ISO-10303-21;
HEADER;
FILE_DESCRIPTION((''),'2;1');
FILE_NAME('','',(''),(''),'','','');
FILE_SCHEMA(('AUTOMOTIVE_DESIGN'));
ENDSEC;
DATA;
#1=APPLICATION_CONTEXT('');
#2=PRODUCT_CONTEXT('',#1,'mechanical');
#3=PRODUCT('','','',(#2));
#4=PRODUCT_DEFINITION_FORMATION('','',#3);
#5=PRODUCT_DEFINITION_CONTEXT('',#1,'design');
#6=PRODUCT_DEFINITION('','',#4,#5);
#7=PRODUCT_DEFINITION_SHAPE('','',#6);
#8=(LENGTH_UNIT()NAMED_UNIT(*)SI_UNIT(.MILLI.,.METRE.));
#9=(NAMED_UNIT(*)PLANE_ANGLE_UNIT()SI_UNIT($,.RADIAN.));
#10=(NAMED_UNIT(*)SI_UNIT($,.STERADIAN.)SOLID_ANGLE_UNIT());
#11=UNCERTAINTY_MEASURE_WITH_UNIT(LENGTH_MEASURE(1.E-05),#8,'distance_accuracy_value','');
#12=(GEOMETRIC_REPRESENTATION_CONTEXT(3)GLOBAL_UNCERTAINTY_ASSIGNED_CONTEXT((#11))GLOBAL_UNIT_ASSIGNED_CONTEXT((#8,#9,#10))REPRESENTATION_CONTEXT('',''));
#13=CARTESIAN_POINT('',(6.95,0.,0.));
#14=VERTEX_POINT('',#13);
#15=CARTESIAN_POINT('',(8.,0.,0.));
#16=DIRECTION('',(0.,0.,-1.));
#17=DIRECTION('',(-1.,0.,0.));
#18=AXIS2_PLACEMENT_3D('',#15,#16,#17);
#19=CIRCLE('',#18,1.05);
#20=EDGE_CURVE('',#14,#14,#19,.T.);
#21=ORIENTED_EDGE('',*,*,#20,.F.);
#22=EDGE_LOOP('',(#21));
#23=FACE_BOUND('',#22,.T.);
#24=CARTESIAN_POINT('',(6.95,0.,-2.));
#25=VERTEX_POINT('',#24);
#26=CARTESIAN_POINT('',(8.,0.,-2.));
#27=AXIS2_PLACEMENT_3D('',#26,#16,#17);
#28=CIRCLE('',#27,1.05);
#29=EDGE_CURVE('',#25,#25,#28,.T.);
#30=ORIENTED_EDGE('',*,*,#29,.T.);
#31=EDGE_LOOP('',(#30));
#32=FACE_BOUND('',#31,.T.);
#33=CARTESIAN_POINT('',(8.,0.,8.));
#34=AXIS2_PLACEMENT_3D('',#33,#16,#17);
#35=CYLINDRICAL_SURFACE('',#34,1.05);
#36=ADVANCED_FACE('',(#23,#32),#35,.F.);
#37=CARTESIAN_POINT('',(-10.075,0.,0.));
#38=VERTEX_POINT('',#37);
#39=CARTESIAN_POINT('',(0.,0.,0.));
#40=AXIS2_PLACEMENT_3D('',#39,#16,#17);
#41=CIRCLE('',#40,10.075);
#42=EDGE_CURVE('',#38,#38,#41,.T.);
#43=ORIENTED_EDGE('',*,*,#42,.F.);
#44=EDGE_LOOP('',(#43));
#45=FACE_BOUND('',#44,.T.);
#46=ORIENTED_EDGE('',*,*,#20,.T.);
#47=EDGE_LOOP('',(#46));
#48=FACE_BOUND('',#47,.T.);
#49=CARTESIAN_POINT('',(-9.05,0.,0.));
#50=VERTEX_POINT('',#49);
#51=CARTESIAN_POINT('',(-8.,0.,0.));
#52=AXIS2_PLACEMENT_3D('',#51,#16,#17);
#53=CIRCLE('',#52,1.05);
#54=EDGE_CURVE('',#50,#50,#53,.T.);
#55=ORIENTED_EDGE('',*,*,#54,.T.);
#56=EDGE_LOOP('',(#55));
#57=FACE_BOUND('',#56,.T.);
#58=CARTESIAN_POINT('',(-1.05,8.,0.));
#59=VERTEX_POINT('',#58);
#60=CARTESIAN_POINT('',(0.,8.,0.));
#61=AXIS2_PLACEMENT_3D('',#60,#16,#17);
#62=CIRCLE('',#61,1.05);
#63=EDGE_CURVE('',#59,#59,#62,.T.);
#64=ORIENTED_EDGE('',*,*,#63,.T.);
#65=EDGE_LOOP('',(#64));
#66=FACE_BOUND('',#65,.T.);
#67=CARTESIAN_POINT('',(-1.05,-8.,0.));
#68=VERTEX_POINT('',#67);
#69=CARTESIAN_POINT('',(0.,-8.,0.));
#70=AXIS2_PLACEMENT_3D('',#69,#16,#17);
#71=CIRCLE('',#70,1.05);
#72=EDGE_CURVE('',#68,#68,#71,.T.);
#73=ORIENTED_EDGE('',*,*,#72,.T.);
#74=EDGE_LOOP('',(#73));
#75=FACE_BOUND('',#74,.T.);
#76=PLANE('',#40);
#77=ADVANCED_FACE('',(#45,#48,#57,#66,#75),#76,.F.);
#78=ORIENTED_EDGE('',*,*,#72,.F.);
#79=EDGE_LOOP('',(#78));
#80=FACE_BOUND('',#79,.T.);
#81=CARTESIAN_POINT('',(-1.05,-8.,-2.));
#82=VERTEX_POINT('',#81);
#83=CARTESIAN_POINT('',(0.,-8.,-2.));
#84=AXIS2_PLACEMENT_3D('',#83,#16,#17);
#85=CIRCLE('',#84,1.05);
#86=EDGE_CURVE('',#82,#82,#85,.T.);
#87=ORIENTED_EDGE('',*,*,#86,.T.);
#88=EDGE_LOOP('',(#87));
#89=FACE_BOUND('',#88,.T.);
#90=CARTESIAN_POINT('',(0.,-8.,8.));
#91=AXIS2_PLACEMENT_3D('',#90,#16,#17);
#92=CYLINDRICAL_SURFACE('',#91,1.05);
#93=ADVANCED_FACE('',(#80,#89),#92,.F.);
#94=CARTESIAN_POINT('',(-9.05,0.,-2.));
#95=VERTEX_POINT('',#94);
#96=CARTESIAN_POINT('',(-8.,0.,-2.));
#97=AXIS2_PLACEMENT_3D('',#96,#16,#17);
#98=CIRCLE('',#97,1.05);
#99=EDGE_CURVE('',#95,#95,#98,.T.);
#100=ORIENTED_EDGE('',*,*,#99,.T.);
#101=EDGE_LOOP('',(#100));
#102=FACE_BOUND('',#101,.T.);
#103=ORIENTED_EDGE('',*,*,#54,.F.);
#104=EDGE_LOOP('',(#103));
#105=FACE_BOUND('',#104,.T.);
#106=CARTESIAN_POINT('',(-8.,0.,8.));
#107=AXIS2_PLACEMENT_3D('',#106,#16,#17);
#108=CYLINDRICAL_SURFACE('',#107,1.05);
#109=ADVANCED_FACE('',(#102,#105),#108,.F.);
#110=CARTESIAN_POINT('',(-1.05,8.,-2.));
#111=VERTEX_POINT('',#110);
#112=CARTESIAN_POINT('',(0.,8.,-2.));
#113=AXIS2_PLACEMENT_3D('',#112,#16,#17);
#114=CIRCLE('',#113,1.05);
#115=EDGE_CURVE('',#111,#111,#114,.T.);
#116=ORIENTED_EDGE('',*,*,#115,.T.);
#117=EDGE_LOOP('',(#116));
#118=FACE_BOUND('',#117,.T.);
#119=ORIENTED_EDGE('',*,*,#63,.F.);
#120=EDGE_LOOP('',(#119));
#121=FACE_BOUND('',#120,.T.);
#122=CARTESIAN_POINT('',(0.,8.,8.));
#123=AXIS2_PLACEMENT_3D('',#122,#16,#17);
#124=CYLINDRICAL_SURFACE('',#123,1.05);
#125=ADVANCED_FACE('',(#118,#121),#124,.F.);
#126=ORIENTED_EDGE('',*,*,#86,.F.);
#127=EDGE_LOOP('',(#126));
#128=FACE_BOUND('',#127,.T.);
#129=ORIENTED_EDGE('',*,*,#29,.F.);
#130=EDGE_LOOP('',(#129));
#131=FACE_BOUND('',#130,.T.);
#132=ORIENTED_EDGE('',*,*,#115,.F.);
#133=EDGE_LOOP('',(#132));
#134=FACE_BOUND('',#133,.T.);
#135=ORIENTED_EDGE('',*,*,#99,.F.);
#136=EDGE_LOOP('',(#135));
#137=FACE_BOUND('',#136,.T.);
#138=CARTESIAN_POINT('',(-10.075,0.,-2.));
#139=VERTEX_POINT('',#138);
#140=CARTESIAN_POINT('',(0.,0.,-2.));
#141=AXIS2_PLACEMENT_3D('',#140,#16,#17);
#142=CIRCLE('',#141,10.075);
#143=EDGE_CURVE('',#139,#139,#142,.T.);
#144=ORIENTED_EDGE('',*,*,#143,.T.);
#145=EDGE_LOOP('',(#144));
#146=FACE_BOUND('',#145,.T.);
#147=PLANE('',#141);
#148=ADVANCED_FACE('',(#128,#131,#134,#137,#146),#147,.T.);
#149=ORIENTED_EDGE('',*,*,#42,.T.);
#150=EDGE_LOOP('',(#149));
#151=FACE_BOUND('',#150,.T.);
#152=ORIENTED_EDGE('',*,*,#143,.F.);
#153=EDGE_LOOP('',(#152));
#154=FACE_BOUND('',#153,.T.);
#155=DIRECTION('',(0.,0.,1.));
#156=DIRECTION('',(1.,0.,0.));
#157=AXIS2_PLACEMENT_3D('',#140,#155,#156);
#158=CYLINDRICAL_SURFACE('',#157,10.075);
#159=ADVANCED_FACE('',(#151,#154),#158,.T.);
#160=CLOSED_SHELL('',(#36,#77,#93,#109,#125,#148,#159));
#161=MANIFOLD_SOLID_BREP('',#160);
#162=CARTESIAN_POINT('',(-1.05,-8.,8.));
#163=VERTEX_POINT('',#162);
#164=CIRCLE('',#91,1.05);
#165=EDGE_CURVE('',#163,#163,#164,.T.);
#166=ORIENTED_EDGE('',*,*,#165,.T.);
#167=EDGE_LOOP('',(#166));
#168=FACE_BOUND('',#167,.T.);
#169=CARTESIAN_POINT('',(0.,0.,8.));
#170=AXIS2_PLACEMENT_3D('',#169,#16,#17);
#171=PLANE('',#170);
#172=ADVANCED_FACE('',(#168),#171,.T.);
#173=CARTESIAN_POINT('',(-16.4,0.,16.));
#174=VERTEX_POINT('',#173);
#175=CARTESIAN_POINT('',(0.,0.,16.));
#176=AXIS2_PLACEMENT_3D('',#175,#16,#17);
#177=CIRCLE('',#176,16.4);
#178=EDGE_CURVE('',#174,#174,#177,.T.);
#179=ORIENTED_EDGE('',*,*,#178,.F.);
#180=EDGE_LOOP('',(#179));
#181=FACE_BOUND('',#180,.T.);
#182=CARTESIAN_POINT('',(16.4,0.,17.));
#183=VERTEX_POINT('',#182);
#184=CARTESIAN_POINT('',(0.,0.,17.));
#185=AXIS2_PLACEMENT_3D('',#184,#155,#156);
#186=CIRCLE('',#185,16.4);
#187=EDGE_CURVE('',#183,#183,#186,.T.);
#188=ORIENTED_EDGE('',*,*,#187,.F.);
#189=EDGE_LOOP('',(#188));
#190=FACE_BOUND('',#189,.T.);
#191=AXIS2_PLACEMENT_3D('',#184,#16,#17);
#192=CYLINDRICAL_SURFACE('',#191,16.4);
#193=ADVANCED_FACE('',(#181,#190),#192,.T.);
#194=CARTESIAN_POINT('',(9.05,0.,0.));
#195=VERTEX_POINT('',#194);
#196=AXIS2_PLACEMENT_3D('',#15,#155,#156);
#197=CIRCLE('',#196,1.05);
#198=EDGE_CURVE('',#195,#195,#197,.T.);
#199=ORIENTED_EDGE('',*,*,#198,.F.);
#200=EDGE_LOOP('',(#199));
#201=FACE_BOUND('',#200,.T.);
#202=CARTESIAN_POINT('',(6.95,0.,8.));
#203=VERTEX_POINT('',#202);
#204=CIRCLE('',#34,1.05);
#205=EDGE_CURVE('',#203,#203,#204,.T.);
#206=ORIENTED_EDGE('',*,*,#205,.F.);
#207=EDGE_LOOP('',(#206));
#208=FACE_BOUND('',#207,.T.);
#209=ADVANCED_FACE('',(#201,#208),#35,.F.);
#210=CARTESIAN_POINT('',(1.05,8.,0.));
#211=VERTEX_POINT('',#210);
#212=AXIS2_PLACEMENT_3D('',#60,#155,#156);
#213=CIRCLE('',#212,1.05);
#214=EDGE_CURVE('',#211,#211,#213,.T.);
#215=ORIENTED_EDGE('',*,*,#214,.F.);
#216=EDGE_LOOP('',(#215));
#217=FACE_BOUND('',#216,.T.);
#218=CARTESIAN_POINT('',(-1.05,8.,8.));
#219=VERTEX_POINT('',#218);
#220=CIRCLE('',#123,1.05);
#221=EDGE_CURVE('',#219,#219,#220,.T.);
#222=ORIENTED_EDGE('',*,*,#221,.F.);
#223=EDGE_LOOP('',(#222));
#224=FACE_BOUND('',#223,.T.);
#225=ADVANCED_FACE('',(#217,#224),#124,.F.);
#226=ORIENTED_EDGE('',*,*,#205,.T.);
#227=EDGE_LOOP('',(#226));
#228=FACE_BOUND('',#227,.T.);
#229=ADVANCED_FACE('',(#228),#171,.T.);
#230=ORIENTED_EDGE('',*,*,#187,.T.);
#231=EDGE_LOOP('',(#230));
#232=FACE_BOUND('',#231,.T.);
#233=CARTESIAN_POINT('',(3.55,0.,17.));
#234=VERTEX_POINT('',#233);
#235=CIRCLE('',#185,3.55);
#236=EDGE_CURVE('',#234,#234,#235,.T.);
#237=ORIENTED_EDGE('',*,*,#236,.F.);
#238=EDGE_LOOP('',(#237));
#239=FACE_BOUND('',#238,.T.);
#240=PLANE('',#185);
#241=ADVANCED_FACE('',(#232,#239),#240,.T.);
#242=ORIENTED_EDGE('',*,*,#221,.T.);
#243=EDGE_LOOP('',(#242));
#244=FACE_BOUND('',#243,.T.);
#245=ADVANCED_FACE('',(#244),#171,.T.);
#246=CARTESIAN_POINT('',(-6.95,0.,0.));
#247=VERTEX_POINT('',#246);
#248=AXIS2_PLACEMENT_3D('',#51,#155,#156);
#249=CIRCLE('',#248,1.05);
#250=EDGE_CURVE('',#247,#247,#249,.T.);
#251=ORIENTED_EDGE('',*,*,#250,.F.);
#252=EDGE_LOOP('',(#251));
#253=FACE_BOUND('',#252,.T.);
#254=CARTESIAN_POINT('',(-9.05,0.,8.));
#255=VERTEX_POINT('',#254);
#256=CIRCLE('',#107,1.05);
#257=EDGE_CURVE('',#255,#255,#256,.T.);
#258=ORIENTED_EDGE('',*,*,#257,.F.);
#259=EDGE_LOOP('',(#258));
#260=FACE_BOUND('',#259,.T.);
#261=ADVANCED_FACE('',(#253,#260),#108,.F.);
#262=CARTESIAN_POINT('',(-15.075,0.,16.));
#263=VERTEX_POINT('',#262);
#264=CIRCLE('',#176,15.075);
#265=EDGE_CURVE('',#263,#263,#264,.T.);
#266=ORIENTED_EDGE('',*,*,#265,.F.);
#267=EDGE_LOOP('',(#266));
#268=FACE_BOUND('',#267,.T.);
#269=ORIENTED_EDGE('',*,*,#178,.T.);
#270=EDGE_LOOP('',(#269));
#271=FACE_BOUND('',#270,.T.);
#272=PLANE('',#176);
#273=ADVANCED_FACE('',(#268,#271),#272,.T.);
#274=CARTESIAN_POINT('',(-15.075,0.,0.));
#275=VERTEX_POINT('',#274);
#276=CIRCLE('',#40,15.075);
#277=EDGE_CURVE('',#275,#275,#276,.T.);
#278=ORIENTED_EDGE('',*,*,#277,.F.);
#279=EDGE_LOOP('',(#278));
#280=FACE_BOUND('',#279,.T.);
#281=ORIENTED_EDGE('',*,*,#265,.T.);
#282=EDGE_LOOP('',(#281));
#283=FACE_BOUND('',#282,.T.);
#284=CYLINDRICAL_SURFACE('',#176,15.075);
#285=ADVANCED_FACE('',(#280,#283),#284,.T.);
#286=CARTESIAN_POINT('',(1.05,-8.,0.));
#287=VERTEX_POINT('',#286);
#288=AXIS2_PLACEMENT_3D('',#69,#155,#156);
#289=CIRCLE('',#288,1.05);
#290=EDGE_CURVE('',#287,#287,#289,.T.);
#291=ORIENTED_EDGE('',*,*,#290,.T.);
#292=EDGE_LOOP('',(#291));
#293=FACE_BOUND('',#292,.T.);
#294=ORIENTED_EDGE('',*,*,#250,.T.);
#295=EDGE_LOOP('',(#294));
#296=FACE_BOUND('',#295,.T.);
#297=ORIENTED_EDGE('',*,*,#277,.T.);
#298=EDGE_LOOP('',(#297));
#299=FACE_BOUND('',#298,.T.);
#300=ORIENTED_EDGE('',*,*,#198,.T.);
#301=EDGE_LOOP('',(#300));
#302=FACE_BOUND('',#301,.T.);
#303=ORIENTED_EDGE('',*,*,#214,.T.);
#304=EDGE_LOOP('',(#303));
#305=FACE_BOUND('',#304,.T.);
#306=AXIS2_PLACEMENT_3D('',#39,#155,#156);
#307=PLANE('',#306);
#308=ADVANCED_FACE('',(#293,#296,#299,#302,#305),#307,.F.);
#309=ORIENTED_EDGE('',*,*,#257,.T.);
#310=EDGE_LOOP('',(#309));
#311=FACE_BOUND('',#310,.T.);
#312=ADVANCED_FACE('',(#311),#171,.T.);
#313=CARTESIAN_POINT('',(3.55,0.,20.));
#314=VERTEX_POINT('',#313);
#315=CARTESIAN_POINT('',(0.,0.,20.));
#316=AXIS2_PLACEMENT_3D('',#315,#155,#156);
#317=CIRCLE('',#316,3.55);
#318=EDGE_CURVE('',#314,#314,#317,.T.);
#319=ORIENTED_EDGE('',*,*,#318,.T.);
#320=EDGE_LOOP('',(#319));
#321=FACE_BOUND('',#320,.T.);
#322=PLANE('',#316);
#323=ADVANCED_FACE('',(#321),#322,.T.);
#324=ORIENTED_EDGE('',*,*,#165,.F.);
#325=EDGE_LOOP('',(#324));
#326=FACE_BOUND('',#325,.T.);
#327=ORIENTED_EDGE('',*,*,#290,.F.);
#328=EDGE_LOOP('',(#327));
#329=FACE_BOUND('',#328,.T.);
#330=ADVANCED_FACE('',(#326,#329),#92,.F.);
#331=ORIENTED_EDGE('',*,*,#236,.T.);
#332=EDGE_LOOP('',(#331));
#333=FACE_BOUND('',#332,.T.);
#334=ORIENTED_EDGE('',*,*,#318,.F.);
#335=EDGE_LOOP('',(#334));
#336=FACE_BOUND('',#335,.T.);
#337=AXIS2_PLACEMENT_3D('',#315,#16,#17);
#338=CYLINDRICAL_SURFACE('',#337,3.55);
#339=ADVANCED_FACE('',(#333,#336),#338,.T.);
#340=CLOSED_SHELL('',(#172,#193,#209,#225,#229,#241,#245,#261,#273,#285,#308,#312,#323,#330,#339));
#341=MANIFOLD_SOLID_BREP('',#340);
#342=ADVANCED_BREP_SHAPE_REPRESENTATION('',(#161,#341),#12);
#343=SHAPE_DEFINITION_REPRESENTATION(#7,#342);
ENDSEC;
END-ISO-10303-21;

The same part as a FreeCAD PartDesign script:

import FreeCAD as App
import Part
import Sketcher
from FreeCAD import Vector
Q = App.Units.Quantity

doc = App.newDocument("Part")
body = doc.addObject("PartDesign::Body", "Body")

# Sketch on XY plane
sketch1 = body.newObject("Sketcher::SketchObject", "Sketch")
sketch1.AttachmentSupport = (doc.getObject("XY_Plane"), [""])
sketch1.MapMode = "FlatFace"
sketch1.addGeometry(Part.Circle(Vector(0, 0, 0), Vector(0, 0, 1), 16.4), False)
sketch1.addConstraint([
    Sketcher.Constraint("Coincident", 0, 3, -1, 1),
    Sketcher.Constraint("Diameter", 0, Q("32.8 mm")),
])
pad1 = body.newObject("PartDesign::Pad", "Pad")
pad1.Profile = sketch1
pad1.Length = 17

# Sketch on XY plane
sketch2 = body.newObject("Sketcher::SketchObject", "Sketch001")
sketch2.AttachmentSupport = (doc.getObject("XY_Plane"), [""])
sketch2.MapMode = "FlatFace"
sketch2.AttachmentOffset = App.Placement(Vector(0, 0, 17), App.Rotation())
sketch2.addGeometry(Part.Circle(Vector(0, 0, 0), Vector(0, 0, 1), 3.55), False)
sketch2.addConstraint([
    Sketcher.Constraint("Coincident", 0, 3, -1, 1),
    Sketcher.Constraint("Diameter", 0, Q("7.1 mm")),
])
pad2 = body.newObject("PartDesign::Pad", "Pad001")
pad2.Profile = sketch2
pad2.Length = 3
body2 = doc.addObject("PartDesign::Body", "Body001")

# Sketch on XY plane
sketch3 = body2.newObject("Sketcher::SketchObject", "Sketch002")
sketch3.AttachmentSupport = (doc.getObject("XY_Plane001"), [""])
sketch3.MapMode = "FlatFace"
sketch3.addGeometry(Part.Circle(Vector(0, 0, 0), Vector(0, 0, 1), 10.075), False)
sketch3.addConstraint([
    Sketcher.Constraint("Coincident", 0, 3, -1, 1),
    Sketcher.Constraint("Diameter", 0, Q("20.15 mm")),
])
pad3 = body2.newObject("PartDesign::Pad", "Pad002")
pad3.Profile = sketch3
pad3.Length = 2
pad3.Reversed = True
body3 = doc.addObject("PartDesign::Body", "Body002")
body3.AllowCompound = True

# Sketch on XY plane
sketch4 = body3.newObject("Sketcher::SketchObject", "Sketch003")
sketch4.AttachmentSupport = (doc.getObject("XY_Plane002"), [""])
sketch4.MapMode = "FlatFace"
sketch4.AttachmentOffset = App.Placement(Vector(0, 0, -2), App.Rotation())
sketch4.addGeometry([
    Part.Circle(Vector(0, 8, 0), Vector(0, 0, 1), 1.05),
    Part.Circle(Vector(-8, 0, 0), Vector(0, 0, 1), 1.05),
    Part.Circle(Vector(0, -8, 0), Vector(0, 0, 1), 1.05),
    Part.Circle(Vector(8, 0, 0), Vector(0, 0, 1), 1.05),
], False)
sketch4.addConstraint([
    Sketcher.Constraint("Equal", 0, 1),
    Sketcher.Constraint("Equal", 1, 2),
    Sketcher.Constraint("Equal", 2, 3),
    Sketcher.Constraint("Symmetric", 0, 3, 2, 3, -1, 1),
    Sketcher.Constraint("Symmetric", 1, 3, 3, 3, -1, 1),
    Sketcher.Constraint("PointOnObject", 0, 3, -2),
    Sketcher.Constraint("PointOnObject", 1, 3, -1),
    Sketcher.Constraint("Diameter", 0, Q("2.1 mm")),
    Sketcher.Constraint("DistanceY", -1, 1, 0, 3, Q("8 mm")),
    Sketcher.Constraint("DistanceX", 1, 3, -1, 1, Q("8 mm")),
])
pad4 = body3.newObject("PartDesign::Pad", "Pad003")
pad4.Profile = sketch4
pad4.Length = 10
doc.recompute()

body4 = doc.addObject("PartDesign::Body", "Body003")
body4.BaseFeature = body3
boolean = body.newObject("PartDesign::Boolean", "Boolean")
boolean.Type = "Cut"
boolean.addObjects([body4])
doc.recompute()

# Sketch on XY plane
sketch5 = body.newObject("Sketcher::SketchObject", "Sketch004")
sketch5.AttachmentSupport = (doc.getObject("XY_Plane"), [""])
sketch5.MapMode = "FlatFace"
sketch5.addGeometry([
    Part.Circle(Vector(0, 0, 0), Vector(0, 0, 1), 16.4),
    Part.Circle(Vector(0, 0, 0), Vector(0, 0, 1), 15.075),
], False)
sketch5.addConstraint([
    Sketcher.Constraint("Coincident", 0, 3, -1, 1),
    Sketcher.Constraint("Coincident", 1, 3, -1, 1),
    Sketcher.Constraint("Diameter", 0, Q("32.8 mm")),
    Sketcher.Constraint("Diameter", 1, Q("30.15 mm")),
])
pocket1 = body.newObject("PartDesign::Pocket", "Pocket")
pocket1.Profile = sketch5
pocket1.Length = 16
pocket1.Reversed = True
doc.recompute()

boolean2 = body2.newObject("PartDesign::Boolean", "Boolean001")
boolean2.Type = "Cut"
boolean2.addObjects([body3])

doc.recompute()
